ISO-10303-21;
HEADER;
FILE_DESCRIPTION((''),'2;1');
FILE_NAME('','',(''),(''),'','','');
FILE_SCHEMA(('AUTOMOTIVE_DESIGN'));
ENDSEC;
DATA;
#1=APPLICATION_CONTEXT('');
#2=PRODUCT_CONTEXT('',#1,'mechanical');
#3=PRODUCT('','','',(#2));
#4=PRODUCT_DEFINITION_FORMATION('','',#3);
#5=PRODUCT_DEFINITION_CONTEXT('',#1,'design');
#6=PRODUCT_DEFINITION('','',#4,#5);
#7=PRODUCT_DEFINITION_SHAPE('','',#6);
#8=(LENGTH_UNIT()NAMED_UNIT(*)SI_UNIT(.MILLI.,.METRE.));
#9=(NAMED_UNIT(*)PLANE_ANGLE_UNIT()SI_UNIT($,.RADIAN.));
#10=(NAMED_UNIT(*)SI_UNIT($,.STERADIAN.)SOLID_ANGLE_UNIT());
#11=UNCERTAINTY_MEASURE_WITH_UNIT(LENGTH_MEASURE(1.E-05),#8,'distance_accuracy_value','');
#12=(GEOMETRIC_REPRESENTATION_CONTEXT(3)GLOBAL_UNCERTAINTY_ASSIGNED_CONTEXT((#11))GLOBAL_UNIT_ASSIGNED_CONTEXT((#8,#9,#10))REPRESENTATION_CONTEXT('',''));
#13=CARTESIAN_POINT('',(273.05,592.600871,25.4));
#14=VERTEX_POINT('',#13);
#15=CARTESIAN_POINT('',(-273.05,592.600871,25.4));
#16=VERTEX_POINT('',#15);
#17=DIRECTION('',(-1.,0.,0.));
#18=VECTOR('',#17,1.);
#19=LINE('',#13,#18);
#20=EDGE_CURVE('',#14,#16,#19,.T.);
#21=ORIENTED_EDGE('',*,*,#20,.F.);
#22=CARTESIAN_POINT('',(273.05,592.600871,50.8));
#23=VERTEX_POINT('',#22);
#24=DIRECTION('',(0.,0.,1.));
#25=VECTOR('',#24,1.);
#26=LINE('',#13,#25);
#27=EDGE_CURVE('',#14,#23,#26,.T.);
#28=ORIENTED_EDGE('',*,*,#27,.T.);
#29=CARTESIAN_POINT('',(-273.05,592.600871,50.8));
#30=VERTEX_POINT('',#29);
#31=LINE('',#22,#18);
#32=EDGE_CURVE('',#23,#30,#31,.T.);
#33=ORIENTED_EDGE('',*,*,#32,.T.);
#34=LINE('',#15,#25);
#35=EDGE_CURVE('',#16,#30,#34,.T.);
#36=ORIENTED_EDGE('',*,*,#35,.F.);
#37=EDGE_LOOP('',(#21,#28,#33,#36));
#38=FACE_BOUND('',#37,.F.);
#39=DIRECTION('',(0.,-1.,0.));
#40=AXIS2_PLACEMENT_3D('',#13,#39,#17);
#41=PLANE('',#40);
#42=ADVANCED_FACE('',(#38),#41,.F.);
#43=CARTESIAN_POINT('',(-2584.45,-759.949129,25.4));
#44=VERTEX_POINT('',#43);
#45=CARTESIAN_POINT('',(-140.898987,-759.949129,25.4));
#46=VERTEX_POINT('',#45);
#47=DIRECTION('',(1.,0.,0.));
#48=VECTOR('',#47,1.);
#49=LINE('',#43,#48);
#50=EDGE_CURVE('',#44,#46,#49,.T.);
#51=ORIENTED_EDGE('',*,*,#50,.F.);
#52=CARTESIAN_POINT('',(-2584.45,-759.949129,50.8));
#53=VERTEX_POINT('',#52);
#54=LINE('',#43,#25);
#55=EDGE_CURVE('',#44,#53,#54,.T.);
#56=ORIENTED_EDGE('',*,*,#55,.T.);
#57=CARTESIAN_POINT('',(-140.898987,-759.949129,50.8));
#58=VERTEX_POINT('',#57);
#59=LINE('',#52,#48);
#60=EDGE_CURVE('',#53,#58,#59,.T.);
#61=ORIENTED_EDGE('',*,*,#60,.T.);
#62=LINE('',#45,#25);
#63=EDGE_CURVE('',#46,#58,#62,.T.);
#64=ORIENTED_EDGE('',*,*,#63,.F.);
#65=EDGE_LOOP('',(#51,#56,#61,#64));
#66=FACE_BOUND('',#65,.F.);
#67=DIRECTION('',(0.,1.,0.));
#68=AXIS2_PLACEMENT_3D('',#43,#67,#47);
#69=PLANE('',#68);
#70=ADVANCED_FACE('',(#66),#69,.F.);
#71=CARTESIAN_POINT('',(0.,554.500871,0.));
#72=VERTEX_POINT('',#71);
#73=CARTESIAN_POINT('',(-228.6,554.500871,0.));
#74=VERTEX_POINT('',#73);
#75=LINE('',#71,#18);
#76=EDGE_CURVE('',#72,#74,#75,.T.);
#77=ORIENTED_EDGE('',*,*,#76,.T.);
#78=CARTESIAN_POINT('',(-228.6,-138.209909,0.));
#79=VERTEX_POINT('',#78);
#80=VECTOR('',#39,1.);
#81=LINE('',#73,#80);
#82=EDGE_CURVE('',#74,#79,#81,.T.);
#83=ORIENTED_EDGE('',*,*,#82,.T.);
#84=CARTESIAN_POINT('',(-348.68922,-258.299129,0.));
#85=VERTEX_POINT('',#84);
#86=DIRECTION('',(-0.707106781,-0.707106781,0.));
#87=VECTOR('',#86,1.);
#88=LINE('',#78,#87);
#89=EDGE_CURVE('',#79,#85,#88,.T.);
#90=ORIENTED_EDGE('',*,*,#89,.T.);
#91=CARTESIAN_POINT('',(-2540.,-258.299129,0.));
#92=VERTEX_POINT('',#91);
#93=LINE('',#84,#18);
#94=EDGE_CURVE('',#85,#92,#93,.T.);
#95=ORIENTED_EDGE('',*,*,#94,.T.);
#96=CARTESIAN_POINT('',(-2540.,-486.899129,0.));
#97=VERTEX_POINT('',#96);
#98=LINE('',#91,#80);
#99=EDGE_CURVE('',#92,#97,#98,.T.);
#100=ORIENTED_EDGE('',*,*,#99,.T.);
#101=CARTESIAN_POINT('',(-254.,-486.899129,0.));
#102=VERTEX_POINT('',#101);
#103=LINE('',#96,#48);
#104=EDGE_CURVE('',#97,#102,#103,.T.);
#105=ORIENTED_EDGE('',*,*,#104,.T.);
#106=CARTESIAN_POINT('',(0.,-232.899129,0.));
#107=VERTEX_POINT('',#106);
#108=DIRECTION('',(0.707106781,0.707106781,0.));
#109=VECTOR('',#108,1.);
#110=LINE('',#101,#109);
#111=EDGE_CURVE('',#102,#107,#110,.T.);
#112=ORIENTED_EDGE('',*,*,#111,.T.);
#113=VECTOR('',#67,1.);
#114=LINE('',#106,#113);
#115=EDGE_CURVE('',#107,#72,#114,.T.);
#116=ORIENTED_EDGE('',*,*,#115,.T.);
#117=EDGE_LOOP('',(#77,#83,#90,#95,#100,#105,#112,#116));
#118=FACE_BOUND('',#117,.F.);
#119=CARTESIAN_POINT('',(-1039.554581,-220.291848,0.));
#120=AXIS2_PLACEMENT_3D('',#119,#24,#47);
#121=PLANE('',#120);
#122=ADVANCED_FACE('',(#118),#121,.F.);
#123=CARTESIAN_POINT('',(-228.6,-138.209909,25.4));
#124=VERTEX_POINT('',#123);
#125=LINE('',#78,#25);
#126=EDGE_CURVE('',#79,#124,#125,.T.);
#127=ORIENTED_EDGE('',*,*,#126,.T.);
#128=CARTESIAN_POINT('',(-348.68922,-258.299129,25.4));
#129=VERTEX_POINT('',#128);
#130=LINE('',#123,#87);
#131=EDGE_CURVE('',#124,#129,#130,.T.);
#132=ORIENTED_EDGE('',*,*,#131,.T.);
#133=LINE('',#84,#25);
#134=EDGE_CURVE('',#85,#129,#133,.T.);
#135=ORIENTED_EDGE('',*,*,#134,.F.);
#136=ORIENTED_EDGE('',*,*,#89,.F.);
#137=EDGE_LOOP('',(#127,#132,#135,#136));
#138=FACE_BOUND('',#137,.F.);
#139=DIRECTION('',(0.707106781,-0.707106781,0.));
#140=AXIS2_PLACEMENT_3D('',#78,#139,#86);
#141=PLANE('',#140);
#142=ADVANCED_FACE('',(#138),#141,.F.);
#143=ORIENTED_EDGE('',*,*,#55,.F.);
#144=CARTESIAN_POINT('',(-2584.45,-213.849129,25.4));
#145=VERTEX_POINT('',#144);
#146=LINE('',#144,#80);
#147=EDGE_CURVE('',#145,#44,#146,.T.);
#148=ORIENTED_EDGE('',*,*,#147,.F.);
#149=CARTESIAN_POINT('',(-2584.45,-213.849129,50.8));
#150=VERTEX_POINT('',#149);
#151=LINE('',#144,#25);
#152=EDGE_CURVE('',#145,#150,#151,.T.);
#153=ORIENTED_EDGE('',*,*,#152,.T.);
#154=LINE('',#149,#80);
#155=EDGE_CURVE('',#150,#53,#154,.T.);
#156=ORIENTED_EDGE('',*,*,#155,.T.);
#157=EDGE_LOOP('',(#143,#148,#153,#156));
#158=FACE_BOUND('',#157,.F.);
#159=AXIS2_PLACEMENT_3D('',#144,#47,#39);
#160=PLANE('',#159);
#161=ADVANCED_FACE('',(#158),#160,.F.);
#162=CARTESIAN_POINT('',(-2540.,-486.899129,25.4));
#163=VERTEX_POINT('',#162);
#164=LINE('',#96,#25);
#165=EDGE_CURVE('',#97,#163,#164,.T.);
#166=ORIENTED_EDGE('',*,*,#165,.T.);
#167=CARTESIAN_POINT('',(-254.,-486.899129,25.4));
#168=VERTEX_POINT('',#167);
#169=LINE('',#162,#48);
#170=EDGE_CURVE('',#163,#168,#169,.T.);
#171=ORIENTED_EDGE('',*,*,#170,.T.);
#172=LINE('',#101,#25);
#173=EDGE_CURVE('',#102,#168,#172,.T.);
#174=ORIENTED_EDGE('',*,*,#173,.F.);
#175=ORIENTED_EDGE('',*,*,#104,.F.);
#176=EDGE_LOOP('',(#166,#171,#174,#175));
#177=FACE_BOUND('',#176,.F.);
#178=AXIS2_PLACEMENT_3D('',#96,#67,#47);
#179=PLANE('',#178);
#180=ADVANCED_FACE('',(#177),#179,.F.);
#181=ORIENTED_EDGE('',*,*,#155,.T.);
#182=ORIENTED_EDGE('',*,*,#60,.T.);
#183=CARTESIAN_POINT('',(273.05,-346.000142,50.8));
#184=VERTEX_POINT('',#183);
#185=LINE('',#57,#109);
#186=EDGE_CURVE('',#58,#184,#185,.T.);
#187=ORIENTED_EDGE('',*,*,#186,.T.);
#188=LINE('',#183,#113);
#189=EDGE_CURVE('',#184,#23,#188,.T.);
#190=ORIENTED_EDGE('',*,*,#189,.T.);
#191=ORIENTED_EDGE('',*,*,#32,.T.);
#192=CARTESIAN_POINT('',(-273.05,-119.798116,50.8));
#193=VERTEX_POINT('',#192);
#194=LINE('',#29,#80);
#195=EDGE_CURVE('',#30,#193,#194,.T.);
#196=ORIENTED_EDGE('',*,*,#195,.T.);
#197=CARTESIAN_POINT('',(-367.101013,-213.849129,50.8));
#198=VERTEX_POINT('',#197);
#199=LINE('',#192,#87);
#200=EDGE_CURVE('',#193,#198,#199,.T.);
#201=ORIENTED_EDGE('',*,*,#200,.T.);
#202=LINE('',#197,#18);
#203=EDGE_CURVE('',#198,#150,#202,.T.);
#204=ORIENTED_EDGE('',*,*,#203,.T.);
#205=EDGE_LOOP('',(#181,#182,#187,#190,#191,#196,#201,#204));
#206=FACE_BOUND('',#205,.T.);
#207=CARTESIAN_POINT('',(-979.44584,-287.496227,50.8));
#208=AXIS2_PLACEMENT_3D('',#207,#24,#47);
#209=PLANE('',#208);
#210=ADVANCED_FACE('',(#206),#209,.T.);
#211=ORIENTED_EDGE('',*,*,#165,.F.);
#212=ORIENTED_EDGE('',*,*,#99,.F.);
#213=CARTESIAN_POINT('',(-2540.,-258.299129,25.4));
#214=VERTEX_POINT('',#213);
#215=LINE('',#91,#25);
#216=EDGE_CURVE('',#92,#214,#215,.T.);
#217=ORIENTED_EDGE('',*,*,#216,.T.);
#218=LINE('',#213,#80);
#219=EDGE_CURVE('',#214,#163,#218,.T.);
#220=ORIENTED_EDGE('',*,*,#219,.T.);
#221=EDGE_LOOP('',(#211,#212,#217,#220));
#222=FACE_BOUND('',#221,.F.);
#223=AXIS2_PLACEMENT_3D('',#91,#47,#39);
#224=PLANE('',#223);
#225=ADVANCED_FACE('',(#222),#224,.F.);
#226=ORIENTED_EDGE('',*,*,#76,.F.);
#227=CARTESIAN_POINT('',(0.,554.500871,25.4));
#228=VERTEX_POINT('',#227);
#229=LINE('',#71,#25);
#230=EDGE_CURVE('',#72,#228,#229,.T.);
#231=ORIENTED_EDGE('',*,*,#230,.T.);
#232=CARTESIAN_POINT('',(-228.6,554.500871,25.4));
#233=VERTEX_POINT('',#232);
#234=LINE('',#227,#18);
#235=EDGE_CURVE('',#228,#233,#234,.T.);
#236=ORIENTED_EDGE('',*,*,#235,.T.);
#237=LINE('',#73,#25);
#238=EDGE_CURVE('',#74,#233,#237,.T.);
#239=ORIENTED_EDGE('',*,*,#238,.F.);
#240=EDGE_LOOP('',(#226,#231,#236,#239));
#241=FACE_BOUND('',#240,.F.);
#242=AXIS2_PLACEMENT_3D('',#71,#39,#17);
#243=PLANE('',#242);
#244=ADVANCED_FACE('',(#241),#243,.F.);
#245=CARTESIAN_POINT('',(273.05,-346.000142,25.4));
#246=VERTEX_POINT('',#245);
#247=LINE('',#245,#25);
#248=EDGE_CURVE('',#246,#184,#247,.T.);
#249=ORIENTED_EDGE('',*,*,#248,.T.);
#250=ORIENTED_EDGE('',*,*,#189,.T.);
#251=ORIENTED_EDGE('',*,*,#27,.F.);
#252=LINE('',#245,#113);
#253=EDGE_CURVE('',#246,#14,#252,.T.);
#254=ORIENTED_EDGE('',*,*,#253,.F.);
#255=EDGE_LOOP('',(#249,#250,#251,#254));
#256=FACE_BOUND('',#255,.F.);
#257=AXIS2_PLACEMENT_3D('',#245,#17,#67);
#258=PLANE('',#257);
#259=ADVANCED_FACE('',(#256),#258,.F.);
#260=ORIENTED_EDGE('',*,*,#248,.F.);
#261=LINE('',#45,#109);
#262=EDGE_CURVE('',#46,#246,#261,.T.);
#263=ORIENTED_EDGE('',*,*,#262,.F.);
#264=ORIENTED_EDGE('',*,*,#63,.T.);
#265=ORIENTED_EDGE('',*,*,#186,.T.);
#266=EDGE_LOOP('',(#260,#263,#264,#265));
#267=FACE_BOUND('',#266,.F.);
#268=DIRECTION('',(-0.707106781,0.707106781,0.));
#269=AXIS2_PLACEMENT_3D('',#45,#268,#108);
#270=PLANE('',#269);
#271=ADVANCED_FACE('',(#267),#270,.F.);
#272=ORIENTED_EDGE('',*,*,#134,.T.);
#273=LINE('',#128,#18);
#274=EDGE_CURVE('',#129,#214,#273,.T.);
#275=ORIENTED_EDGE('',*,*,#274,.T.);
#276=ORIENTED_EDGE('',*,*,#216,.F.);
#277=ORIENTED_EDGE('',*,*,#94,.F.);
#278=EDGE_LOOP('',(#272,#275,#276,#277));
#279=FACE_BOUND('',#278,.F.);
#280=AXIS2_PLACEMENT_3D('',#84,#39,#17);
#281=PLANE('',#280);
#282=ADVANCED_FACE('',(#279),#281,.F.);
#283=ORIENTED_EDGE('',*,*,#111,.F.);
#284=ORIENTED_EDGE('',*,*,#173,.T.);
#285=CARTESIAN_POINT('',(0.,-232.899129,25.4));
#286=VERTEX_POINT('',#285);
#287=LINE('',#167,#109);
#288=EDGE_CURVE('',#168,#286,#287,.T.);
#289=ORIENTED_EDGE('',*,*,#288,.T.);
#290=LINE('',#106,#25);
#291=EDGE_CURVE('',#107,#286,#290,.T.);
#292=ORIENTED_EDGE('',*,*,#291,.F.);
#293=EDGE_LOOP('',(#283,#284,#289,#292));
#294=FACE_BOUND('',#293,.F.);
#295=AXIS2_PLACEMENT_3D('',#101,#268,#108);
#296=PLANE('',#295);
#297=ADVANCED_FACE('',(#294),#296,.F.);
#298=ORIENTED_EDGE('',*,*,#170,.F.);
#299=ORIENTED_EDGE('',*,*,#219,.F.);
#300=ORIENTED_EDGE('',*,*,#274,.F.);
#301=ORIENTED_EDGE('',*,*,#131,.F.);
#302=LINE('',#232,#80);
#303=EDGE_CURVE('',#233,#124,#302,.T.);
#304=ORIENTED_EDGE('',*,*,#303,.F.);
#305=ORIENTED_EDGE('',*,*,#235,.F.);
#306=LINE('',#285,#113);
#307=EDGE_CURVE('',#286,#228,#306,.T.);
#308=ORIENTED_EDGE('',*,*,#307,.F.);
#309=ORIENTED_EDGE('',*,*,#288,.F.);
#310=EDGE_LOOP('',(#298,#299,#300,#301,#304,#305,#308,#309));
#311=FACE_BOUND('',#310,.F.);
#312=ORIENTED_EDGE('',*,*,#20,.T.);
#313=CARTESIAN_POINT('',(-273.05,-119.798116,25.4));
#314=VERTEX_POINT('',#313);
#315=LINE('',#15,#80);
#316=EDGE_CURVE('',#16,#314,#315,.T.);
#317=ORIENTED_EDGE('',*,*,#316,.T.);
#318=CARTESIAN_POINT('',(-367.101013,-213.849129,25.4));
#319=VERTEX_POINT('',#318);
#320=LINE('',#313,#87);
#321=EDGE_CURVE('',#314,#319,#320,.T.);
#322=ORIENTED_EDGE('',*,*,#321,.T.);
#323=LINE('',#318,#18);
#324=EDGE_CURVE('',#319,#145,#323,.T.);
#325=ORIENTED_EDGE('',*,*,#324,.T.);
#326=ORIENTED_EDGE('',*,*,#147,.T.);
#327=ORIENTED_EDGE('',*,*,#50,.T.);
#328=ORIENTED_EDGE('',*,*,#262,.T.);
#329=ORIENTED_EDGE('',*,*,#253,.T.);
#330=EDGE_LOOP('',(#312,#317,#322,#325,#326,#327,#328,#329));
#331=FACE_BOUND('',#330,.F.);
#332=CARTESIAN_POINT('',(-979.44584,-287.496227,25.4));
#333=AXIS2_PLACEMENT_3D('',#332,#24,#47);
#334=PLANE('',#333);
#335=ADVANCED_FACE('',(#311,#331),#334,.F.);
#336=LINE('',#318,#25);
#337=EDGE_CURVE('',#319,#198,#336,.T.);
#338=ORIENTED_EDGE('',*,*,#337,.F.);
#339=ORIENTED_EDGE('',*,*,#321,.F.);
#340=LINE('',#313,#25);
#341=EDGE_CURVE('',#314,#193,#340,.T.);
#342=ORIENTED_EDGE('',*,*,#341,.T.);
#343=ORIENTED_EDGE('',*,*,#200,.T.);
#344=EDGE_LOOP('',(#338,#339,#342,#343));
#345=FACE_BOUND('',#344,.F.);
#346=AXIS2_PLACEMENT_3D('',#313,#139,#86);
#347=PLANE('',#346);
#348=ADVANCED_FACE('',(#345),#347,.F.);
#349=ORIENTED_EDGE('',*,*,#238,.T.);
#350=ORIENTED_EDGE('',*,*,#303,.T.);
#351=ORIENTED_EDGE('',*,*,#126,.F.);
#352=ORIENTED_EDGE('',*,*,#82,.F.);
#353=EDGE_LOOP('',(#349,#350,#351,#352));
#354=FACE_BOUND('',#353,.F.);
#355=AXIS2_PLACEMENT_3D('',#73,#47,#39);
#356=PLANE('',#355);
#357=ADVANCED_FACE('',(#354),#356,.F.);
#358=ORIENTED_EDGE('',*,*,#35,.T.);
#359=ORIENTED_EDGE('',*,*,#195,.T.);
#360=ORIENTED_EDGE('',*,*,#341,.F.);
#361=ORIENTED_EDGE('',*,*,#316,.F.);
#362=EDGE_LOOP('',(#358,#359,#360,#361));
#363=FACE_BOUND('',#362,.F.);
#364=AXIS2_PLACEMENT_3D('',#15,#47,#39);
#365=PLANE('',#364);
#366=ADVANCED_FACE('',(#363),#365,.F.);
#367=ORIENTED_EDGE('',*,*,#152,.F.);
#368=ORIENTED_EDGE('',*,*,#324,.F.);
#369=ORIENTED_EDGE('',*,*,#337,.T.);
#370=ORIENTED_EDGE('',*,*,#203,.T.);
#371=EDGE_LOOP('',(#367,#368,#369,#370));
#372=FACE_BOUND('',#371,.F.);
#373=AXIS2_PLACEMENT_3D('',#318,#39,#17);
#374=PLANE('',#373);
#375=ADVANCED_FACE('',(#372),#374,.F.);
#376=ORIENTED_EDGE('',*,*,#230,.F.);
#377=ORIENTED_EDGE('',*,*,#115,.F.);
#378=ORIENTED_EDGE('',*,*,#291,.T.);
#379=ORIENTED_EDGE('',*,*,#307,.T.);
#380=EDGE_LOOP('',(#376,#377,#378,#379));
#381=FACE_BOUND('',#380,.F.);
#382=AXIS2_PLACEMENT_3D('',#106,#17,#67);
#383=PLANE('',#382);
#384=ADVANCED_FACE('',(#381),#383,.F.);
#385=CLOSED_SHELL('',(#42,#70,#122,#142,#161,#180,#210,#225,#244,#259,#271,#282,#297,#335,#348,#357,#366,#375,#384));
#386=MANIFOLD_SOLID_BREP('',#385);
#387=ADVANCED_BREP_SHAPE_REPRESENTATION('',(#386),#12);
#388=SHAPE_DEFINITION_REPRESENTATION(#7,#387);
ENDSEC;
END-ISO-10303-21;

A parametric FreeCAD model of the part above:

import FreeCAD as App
import Part
import Sketcher
Q = App.Units.Quantity

doc = App.newDocument("Part")
body = doc.addObject("PartDesign::Body", "Body")

# Sketch on XY plane
sketch1 = body.newObject("Sketcher::SketchObject", "Sketch")
sketch1.AttachmentSupport = (doc.getObject("XY_Plane"), [""])
sketch1.MapMode = "FlatFace"
sketch1.addGeometry(Part.LineSegment(App.Vector(-2540, -258, 0), App.Vector(-2540, -487, 0)), False)
sketch1.addGeometry(Part.LineSegment(App.Vector(-2540, -487, 0), App.Vector(-254, -487, 0)), False)
sketch1.addGeometry(Part.LineSegment(App.Vector(-254, -487, 0), App.Vector(0, -233, 0)), False)
sketch1.addGeometry(Part.LineSegment(App.Vector(0, -233, 0), App.Vector(0, 555, 0)), False)
sketch1.addGeometry(Part.LineSegment(App.Vector(0, 555, 0), App.Vector(-229, 555, 0)), False)
sketch1.addGeometry(Part.LineSegment(App.Vector(-229, 555, 0), App.Vector(-229, -138, 0)), False)
sketch1.addGeometry(Part.LineSegment(App.Vector(-229, -138, 0), App.Vector(-349, -258, 0)), False)
sketch1.addGeometry(Part.LineSegment(App.Vector(-349, -258, 0), App.Vector(-2540, -258, 0)), False)
sketch1.addConstraint(Sketcher.Constraint("Coincident", 0, 2, 1, 1))
sketch1.addConstraint(Sketcher.Constraint("Coincident", 1, 2, 2, 1))
sketch1.addConstraint(Sketcher.Constraint("Coincident", 2, 2, 3, 1))
sketch1.addConstraint(Sketcher.Constraint("Coincident", 3, 2, 4, 1))
sketch1.addConstraint(Sketcher.Constraint("Coincident", 4, 2, 5, 1))
sketch1.addConstraint(Sketcher.Constraint("Coincident", 5, 2, 6, 1))
sketch1.addConstraint(Sketcher.Constraint("Coincident", 6, 2, 7, 1))
sketch1.addConstraint(Sketcher.Constraint("Coincident", 7, 2, 0, 1))
sketch1.addConstraint(Sketcher.Constraint("Vertical", 0))
sketch1.addConstraint(Sketcher.Constraint("Horizontal", 1))
sketch1.addConstraint(Sketcher.Constraint("Vertical", 3))
sketch1.addConstraint(Sketcher.Constraint("Horizontal", 4))
sketch1.addConstraint(Sketcher.Constraint("Vertical", 5))
sketch1.addConstraint(Sketcher.Constraint("Horizontal", 7))
sketch1.addConstraint(Sketcher.Constraint("PointOnObject", 2, 2, -2))
sketch1.addConstraint(Sketcher.Constraint("Parallel", 2, 6))
sketch1.addConstraint(Sketcher.Constraint("Equal", 4, 0))
sketch1.addConstraint(Sketcher.Constraint("DistanceX", 1, 1, 1, 2, Q("90 in")))
sketch1.addConstraint(Sketcher.Constraint("DistanceX", 4, 2, 4, 1, Q("9 in")))
sketch1.addConstraint(Sketcher.Constraint("DistanceY", 3, 1, 3, 2, Q("31 in")))
sketch1.addConstraint(Sketcher.Constraint("DistanceX", 0, 2, -1, 1, Q("100 in")))
sketch1.addConstraint(Sketcher.Constraint("Angle", 2, Q("45 deg")))
sketch1.addConstraint(Sketcher.Constraint("DistanceX", 7, 2, 7, 1, 2191.31078))
sketch1.addConstraint(Sketcher.Constraint("DistanceY", 0, 2, -1, 1, 486.899129))
pad1 = body.newObject("PartDesign::Pad", "Pad")
pad1.Profile = sketch1
pad1.Length = Q("1 in")

# Sketch on XY plane
sketch2 = body.newObject("Sketcher::SketchObject", "Sketch001")
sketch2.AttachmentSupport = (doc.getObject("XY_Plane"), [""])
sketch2.MapMode = "FlatFace"
sketch2.AttachmentOffset = App.Placement(App.Vector(0, 0, 1 * 25.4), App.Rotation())
sketch2.addGeometry(Part.LineSegment(App.Vector(-367, -214, 0), App.Vector(-2584, -214, 0)), False)
sketch2.addGeometry(Part.LineSegment(App.Vector(-2584, -214, 0), App.Vector(-2584, -760, 0)), False)
sketch2.addGeometry(Part.LineSegment(App.Vector(-2584, -760, 0), App.Vector(-141, -760, 0)), False)
sketch2.addGeometry(Part.LineSegment(App.Vector(-141, -760, 0), App.Vector(273, -346, 0)), False)
sketch2.addGeometry(Part.LineSegment(App.Vector(273, -346, 0), App.Vector(273, 593, 0)), False)
sketch2.addGeometry(Part.LineSegment(App.Vector(273, 593, 0), App.Vector(-273, 593, 0)), False)
sketch2.addGeometry(Part.LineSegment(App.Vector(-273, 593, 0), App.Vector(-273, -120, 0)), False)
sketch2.addGeometry(Part.LineSegment(App.Vector(-273, -120, 0), App.Vector(-367, -214, 0)), False)
sketch2.addConstraint(Sketcher.Constraint("Coincident", 0, 2, 1, 1))
sketch2.addConstraint(Sketcher.Constraint("Coincident", 1, 2, 2, 1))
sketch2.addConstraint(Sketcher.Constraint("Coincident", 2, 2, 3, 1))
sketch2.addConstraint(Sketcher.Constraint("Coincident", 3, 2, 4, 1))
sketch2.addConstraint(Sketcher.Constraint("Coincident", 4, 2, 5, 1))
sketch2.addConstraint(Sketcher.Constraint("Coincident", 5, 2, 6, 1))
sketch2.addConstraint(Sketcher.Constraint("Coincident", 6, 2, 7, 1))
sketch2.addConstraint(Sketcher.Constraint("Coincident", 7, 2, 0, 1))
sketch2.addConstraint(Sketcher.Constraint("Horizontal", 0))
sketch2.addConstraint(Sketcher.Constraint("Vertical", 1))
sketch2.addConstraint(Sketcher.Constraint("Horizontal", 2))
sketch2.addConstraint(Sketcher.Constraint("Vertical", 4))
sketch2.addConstraint(Sketcher.Constraint("Horizontal", 5))
sketch2.addConstraint(Sketcher.Constraint("Vertical", 6))
sketch2.addConstraint(Sketcher.Constraint("Parallel", 3, 7))
sketch2.addConstraint(Sketcher.Constraint("Equal", 5, 1))
sketch2.addConstraint(Sketcher.Constraint("DistanceX", 5, 2, 5, 1, Q("21.5 in")))
sketch2.addConstraint(Sketcher.Constraint("Angle", 3, Q("45 deg")))
sketch2.addConstraint(Sketcher.Constraint("DistanceX", 0, 2, 5, 2, Q("91 in")))
sketch2.addConstraint(Sketcher.Constraint("DistanceX", 0, 2, -1, 1, Q("101.75 in")))
sketch2.addConstraint(Sketcher.Constraint("DistanceY", 2, 2, 4, 2, Q("53.25 in")))
sketch2.addConstraint(Sketcher.Constraint("Distance", 3, 585.412272))
sketch2.addConstraint(Sketcher.Constraint("Distance", 7, 133.008218))
sketch2.addConstraint(Sketcher.Constraint("DistanceY", 0, 2, -1, 1, 213.849129))
pad2 = body.newObject("PartDesign::Pad", "Pad001")
pad2.Profile = sketch2
pad2.Length = Q("1 in")

doc.recompute()
